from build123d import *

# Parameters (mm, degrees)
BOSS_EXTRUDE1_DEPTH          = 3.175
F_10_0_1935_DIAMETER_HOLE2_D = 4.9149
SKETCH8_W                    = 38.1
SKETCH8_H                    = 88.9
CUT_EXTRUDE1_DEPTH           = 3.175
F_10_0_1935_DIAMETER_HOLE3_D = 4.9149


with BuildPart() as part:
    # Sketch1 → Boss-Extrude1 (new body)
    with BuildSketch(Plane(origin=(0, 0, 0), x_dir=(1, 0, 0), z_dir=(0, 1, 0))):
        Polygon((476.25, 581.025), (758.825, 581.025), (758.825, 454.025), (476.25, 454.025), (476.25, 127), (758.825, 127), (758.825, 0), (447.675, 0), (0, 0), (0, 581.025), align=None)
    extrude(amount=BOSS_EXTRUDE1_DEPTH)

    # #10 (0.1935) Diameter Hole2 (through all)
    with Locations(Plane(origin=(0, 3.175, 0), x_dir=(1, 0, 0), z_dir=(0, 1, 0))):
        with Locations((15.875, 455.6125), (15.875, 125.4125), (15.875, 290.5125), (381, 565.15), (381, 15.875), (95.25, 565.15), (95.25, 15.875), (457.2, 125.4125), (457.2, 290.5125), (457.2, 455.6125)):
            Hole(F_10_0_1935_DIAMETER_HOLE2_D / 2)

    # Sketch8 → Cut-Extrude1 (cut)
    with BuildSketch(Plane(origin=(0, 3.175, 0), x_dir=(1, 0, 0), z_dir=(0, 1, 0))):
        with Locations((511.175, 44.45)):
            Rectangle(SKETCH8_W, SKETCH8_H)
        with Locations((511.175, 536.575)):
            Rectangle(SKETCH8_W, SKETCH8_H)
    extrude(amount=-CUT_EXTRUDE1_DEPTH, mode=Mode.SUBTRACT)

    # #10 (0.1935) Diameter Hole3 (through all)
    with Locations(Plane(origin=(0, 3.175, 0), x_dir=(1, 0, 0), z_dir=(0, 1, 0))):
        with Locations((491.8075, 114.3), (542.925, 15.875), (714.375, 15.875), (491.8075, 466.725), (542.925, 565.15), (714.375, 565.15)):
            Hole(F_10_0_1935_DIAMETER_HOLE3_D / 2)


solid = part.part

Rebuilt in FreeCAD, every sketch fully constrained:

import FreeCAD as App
import Part
import Sketcher
from FreeCAD import Vector
Q = App.Units.Quantity


def add_polygon(sketch, points):
    """Adds a closed chain of lines whose ends are joined by coincident constraints."""
    first, n = sketch.GeometryCount, len(points)
    for a, b in zip(points, points[1:] + points[:1]):
        sketch.addGeometry(Part.LineSegment(App.Vector(*a, 0), App.Vector(*b, 0)), False)
    for i in range(n):
        sketch.addConstraint(Sketcher.Constraint("Coincident", first + i, 2, first + (i + 1) % n, 1))

doc = App.newDocument("Part")
body = doc.addObject("PartDesign::Body", "Body")

# Sketch on XZ plane
sketch1 = body.newObject("Sketcher::SketchObject", "Sketch")
sketch1.AttachmentSupport = (doc.getObject("XZ_Plane"), [""])
sketch1.MapMode = "FlatFace"
add_polygon(sketch1, [(759, -581), (0, -581), (0, 0), (759, 0), (759, -127), (476, -127), (476, -454), (759, -454)])  # lines 0-7
sketch1.addConstraint([
    Sketcher.Constraint("Horizontal", 0),
    Sketcher.Constraint("Vertical", 1),
    Sketcher.Constraint("Horizontal", 2),
    Sketcher.Constraint("Vertical", 3),
    Sketcher.Constraint("Horizontal", 4),
    Sketcher.Constraint("Vertical", 5),
    Sketcher.Constraint("Horizontal", 6),
    Sketcher.Constraint("Vertical", 7),
    Sketcher.Constraint("Coincident", 1, 2, -1, 1),
    Sketcher.Constraint("Vertical", 3, 2, 6, 2),
    Sketcher.Constraint("Equal", 3, 7),
    Sketcher.Constraint("DistanceY", 3, 2, 3, 1, Q("5 in")),
    Sketcher.Constraint("DistanceX", 0, 2, 0, 1, Q("29.875 in")),
    Sketcher.Constraint("DistanceX", 4, 2, 4, 1, Q("11.125 in")),
    Sketcher.Constraint("DistanceY", 1, 1, 1, 2, Q("22.875 in")),
])
pad1 = body.newObject("PartDesign::Pad", "Pad")
pad1.Profile = sketch1
pad1.Length = Q("0.125 in")
pad1.Reversed = True

# Sketch on XZ plane
sketch2 = body.newObject("Sketcher::SketchObject", "Sketch001")
sketch2.AttachmentSupport = (doc.getObject("XZ_Plane"), [""])
sketch2.MapMode = "FlatFace"
sketch2.AttachmentOffset = App.Placement(Vector(0, 0, -0.125 * 25.4), App.Rotation())
sketch2.addGeometry([
    Part.Circle(Vector(15.9, -455.6, 0), Vector(0, 0, 1), 2.5),  # 0
    Part.Circle(Vector(15.9, -125.4, 0), Vector(0, 0, 1), 2.5),  # 1
    Part.Circle(Vector(15.9, -290.5, 0), Vector(0, 0, 1), 2.5),  # 2
    Part.Circle(Vector(381, -565.1, 0), Vector(0, 0, 1), 2.5),  # 3
    Part.Circle(Vector(381, -15.9, 0), Vector(0, 0, 1), 2.5),  # 4
    Part.Circle(Vector(95.2, -565.1, 0), Vector(0, 0, 1), 2.5),  # 5
    Part.Circle(Vector(95.2, -15.9, 0), Vector(0, 0, 1), 2.5),  # 6
    Part.Circle(Vector(457.2, -125.4, 0), Vector(0, 0, 1), 2.5),  # 7
    Part.Circle(Vector(457.2, -290.5, 0), Vector(0, 0, 1), 2.5),  # 8
    Part.Circle(Vector(457.2, -455.6, 0), Vector(0, 0, 1), 2.5),  # 9
], False)
sketch2.addConstraint([
    Sketcher.Constraint("Equal", 0, 1),
    Sketcher.Constraint("Equal", 1, 2),
    Sketcher.Constraint("Equal", 2, 3),
    Sketcher.Constraint("Equal", 3, 4),
    Sketcher.Constraint("Equal", 4, 5),
    Sketcher.Constraint("Equal", 5, 6),
    Sketcher.Constraint("Equal", 6, 7),
    Sketcher.Constraint("Equal", 7, 8),
    Sketcher.Constraint("Equal", 8, 9),
    Sketcher.Constraint("Horizontal", 3, 3, 5, 3),
    Sketcher.Constraint("Horizontal", 4, 3, 6, 3),
    Sketcher.Constraint("Horizontal", 1, 3, 7, 3),
    Sketcher.Constraint("Horizontal", 2, 3, 8, 3),
    Sketcher.Constraint("Horizontal", 0, 3, 9, 3),
    Sketcher.Constraint("Vertical", 0, 3, 1, 3),
    Sketcher.Constraint("Vertical", 1, 3, 2, 3),
    Sketcher.Constraint("Vertical", 3, 3, 4, 3),
    Sketcher.Constraint("Vertical", 5, 3, 6, 3),
    Sketcher.Constraint("Vertical", 7, 3, 8, 3),
    Sketcher.Constraint("Vertical", 8, 3, 9, 3),
    Sketcher.Constraint("DistanceX", -1, 1, 3, 3, Q("15 in")),
    Sketcher.Constraint("DistanceX", -1, 1, 7, 3, Q("18 in")),
    Sketcher.Constraint("DistanceY", 0, 3, 1, 3, Q("13 in")),
    Sketcher.Constraint("Diameter", 0, Q("0.1935 in")),
    Sketcher.Constraint("DistanceY", 2, 3, 1, 3, Q("6.5 in")),
    Sketcher.Constraint("DistanceY", 3, 3, -1, 1, Q("22.25 in")),
    Sketcher.Constraint("DistanceX", -1, 1, 5, 3, Q("3.75 in")),
    Sketcher.Constraint("DistanceX", -1, 1, 0, 3, Q("0.625 in")),
    Sketcher.Constraint("DistanceY", 0, 3, -1, 1, Q("17.9375 in")),
    Sketcher.Constraint("DistanceY", 4, 3, -1, 1, Q("0.625 in")),
])
doc.recompute()
hole = body.newObject("PartDesign::Hole", "Hole")
hole.Profile = sketch2
hole.ThreadType = "None"
hole.Diameter = Q("0.1935 in")
hole.DepthType = "ThroughAll"
hole.Reversed = True

# Sketch on XZ plane
sketch3 = body.newObject("Sketcher::SketchObject", "Sketch002")
sketch3.AttachmentSupport = (doc.getObject("XZ_Plane"), [""])
sketch3.MapMode = "FlatFace"
sketch3.AttachmentOffset = App.Placement(Vector(0, 0, -0.125 * 25.4), App.Rotation())
add_polygon(sketch3, [(492, -89), (492, 0), (530, 0), (530, -89)])  # lines 0-3
add_polygon(sketch3, [(492, -581), (492, -492), (530, -492), (530, -581)])  # lines 4-7
sketch3.addConstraint([
    Sketcher.Constraint("Vertical", 0),
    Sketcher.Constraint("Horizontal", 1),
    Sketcher.Constraint("Vertical", 2),
    Sketcher.Constraint("Horizontal", 3),
    Sketcher.Constraint("Vertical", 4),
    Sketcher.Constraint("Horizontal", 5),
    Sketcher.Constraint("Vertical", 6),
    Sketcher.Constraint("Horizontal", 7),
    Sketcher.Constraint("PointOnObject", 0, 2, -1),
    Sketcher.Constraint("Vertical", 3, 2, 4, 2),
    Sketcher.Constraint("Vertical", 2, 2, 5, 2),
    Sketcher.Constraint("Equal", 2, 4),
    Sketcher.Constraint("DistanceX", 1, 1, 1, 2, Q("1.5 in")),
    Sketcher.Constraint("DistanceY", 0, 1, 0, 2, Q("3.5 in")),
    Sketcher.Constraint("DistanceX", -1, 1, 0, 2, Q("19.375 in")),
    Sketcher.Constraint("DistanceY", 4, 2, -1, 1, Q("19.375 in")),
])
pocket1 = body.newObject("PartDesign::Pocket", "Pocket")
pocket1.Profile = sketch3
pocket1.Length = Q("0.125 in")
pocket1.Reversed = True

# Sketch on XZ plane
sketch4 = body.newObject("Sketcher::SketchObject", "Sketch003")
sketch4.AttachmentSupport = (doc.getObject("XZ_Plane"), [""])
sketch4.MapMode = "FlatFace"
sketch4.AttachmentOffset = App.Placement(Vector(0, 0, -0.125 * 25.4), App.Rotation())
sketch4.addGeometry([
    Part.Circle(Vector(491.8, -114.3, 0), Vector(0, 0, 1), 2.5),  # 0
    Part.Circle(Vector(542.9, -15.9, 0), Vector(0, 0, 1), 2.5),  # 1
    Part.Circle(Vector(714.4, -15.9, 0), Vector(0, 0, 1), 2.5),  # 2
    Part.Circle(Vector(491.8, -466.7, 0), Vector(0, 0, 1), 2.5),  # 3
    Part.Circle(Vector(542.9, -565.1, 0), Vector(0, 0, 1), 2.5),  # 4
    Part.Circle(Vector(714.4, -565.1, 0), Vector(0, 0, 1), 2.5),  # 5
], False)
sketch4.addConstraint([
    Sketcher.Constraint("Equal", 0, 1),
    Sketcher.Constraint("Equal", 1, 2),
    Sketcher.Constraint("Equal", 2, 3),
    Sketcher.Constraint("Equal", 3, 4),
    Sketcher.Constraint("Equal", 4, 5),
    Sketcher.Constraint("Horizontal", 1, 3, 2, 3),
    Sketcher.Constraint("Horizontal", 4, 3, 5, 3),
    Sketcher.Constraint("Vertical", 0, 3, 3, 3),
    Sketcher.Constraint("Vertical", 1, 3, 4, 3),
    Sketcher.Constraint("Vertical", 2, 3, 5, 3),
    Sketcher.Constraint("Diameter", 0, Q("0.1935 in")),
    Sketcher.Constraint("DistanceY", 0, 3, -1, 1, Q("4.5 in")),
    Sketcher.Constraint("DistanceY", 4, 3, -1, 1, Q("22.25 in")),
    Sketcher.Constraint("DistanceX", 1, 3, 2, 3, Q("6.75 in")),
    Sketcher.Constraint("DistanceY", 3, 3, 1, 3, Q("17.75 in")),
    Sketcher.Constraint("DistanceX", -1, 1, 1, 3, Q("21.375 in")),
    Sketcher.Constraint("DistanceY", 1, 3, -1, 1, Q("0.625 in")),
    Sketcher.Constraint("DistanceX", -1, 1, 0, 3, Q("19.3625 in")),
])
doc.recompute()
hole2 = body.newObject("PartDesign::Hole", "Hole001")
hole2.Profile = sketch4
hole2.ThreadType = "None"
hole2.Diameter = Q("0.1935 in")
hole2.DepthType = "ThroughAll"
hole2.Reversed = True

doc.recompute()
